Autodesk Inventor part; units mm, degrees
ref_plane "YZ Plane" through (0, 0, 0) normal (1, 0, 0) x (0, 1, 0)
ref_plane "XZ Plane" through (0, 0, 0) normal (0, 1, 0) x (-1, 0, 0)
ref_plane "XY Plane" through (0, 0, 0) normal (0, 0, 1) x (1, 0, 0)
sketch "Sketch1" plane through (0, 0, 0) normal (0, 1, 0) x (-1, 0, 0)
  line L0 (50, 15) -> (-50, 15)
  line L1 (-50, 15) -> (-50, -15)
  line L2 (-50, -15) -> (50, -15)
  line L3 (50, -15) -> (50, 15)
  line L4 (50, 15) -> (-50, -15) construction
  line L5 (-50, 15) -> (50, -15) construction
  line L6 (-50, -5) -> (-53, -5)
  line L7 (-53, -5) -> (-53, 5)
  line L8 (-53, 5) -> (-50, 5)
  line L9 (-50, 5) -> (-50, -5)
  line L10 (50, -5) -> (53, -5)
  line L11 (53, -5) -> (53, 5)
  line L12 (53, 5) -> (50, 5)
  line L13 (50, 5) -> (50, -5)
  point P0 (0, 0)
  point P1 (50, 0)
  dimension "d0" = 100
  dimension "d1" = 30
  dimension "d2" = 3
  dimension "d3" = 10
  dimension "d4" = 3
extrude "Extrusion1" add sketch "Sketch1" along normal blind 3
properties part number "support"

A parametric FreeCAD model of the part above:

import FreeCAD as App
import Part
import Sketcher
from FreeCAD import Vector
Q = App.Units.Quantity


def add_polygon(sketch, points):
    """Adds a closed chain of lines whose ends are joined by coincident constraints."""
    first, n = sketch.GeometryCount, len(points)
    for a, b in zip(points, points[1:] + points[:1]):
        sketch.addGeometry(Part.LineSegment(App.Vector(*a, 0), App.Vector(*b, 0)), False)
    for i in range(n):
        sketch.addConstraint(Sketcher.Constraint("Coincident", first + i, 2, first + (i + 1) % n, 1))

doc = App.newDocument("Part")
body = doc.addObject("PartDesign::Body", "Body")

sketch1 = body.newObject("Sketcher::SketchObject", "Sketch")
sketch1.AttachmentSupport = (doc.getObject("XZ_Plane"), [""])
sketch1.MapMode = "FlatFace"
add_polygon(sketch1, [(-50, 5), (-50, 15), (50, 15), (50, 5), (53, 5), (53, -5), (50, -5), (50, -15), (-50, -15), (-50, -5), (-53, -5), (-53, 5)])
sketch1.addConstraint(Sketcher.Constraint("Vertical", 0))
sketch1.addConstraint(Sketcher.Constraint("Horizontal", 1))
sketch1.addConstraint(Sketcher.Constraint("Vertical", 2))
sketch1.addConstraint(Sketcher.Constraint("Horizontal", 3))
sketch1.addConstraint(Sketcher.Constraint("Vertical", 4))
sketch1.addConstraint(Sketcher.Constraint("Horizontal", 5))
sketch1.addConstraint(Sketcher.Constraint("Vertical", 6))
sketch1.addConstraint(Sketcher.Constraint("Horizontal", 7))
sketch1.addConstraint(Sketcher.Constraint("Vertical", 8))
sketch1.addConstraint(Sketcher.Constraint("Horizontal", 9))
sketch1.addConstraint(Sketcher.Constraint("Vertical", 10))
sketch1.addConstraint(Sketcher.Constraint("Horizontal", 11))
sketch1.addConstraint(Sketcher.Constraint("Symmetric", 0, 2, 6, 2, -1, 1))
sketch1.addConstraint(Sketcher.Constraint("Symmetric", 2, 2, 8, 2, -1, 1))
sketch1.addConstraint(Sketcher.Constraint("Symmetric", 4, 2, 10, 2, -1, 1))
sketch1.addConstraint(Sketcher.Constraint("Symmetric", 5, 2, 8, 2, -2))
sketch1.addConstraint(Sketcher.Constraint("Equal", 2, 4))
sketch1.addConstraint(Sketcher.Constraint("DistanceX", 1, 1, 1, 2, Q("3.937 in")))
sketch1.addConstraint(Sketcher.Constraint("DistanceX", 3, 1, 3, 2, Q("0.1181 in")))
sketch1.addConstraint(Sketcher.Constraint("DistanceY", 0, 1, 0, 2, Q("0.3937 in")))
pad1 = body.newObject("PartDesign::Pad", "Pad")
pad1.Profile = sketch1
pad1.Length = Q("0.1181102 in")
pad1.Reversed = True

doc.recompute()
